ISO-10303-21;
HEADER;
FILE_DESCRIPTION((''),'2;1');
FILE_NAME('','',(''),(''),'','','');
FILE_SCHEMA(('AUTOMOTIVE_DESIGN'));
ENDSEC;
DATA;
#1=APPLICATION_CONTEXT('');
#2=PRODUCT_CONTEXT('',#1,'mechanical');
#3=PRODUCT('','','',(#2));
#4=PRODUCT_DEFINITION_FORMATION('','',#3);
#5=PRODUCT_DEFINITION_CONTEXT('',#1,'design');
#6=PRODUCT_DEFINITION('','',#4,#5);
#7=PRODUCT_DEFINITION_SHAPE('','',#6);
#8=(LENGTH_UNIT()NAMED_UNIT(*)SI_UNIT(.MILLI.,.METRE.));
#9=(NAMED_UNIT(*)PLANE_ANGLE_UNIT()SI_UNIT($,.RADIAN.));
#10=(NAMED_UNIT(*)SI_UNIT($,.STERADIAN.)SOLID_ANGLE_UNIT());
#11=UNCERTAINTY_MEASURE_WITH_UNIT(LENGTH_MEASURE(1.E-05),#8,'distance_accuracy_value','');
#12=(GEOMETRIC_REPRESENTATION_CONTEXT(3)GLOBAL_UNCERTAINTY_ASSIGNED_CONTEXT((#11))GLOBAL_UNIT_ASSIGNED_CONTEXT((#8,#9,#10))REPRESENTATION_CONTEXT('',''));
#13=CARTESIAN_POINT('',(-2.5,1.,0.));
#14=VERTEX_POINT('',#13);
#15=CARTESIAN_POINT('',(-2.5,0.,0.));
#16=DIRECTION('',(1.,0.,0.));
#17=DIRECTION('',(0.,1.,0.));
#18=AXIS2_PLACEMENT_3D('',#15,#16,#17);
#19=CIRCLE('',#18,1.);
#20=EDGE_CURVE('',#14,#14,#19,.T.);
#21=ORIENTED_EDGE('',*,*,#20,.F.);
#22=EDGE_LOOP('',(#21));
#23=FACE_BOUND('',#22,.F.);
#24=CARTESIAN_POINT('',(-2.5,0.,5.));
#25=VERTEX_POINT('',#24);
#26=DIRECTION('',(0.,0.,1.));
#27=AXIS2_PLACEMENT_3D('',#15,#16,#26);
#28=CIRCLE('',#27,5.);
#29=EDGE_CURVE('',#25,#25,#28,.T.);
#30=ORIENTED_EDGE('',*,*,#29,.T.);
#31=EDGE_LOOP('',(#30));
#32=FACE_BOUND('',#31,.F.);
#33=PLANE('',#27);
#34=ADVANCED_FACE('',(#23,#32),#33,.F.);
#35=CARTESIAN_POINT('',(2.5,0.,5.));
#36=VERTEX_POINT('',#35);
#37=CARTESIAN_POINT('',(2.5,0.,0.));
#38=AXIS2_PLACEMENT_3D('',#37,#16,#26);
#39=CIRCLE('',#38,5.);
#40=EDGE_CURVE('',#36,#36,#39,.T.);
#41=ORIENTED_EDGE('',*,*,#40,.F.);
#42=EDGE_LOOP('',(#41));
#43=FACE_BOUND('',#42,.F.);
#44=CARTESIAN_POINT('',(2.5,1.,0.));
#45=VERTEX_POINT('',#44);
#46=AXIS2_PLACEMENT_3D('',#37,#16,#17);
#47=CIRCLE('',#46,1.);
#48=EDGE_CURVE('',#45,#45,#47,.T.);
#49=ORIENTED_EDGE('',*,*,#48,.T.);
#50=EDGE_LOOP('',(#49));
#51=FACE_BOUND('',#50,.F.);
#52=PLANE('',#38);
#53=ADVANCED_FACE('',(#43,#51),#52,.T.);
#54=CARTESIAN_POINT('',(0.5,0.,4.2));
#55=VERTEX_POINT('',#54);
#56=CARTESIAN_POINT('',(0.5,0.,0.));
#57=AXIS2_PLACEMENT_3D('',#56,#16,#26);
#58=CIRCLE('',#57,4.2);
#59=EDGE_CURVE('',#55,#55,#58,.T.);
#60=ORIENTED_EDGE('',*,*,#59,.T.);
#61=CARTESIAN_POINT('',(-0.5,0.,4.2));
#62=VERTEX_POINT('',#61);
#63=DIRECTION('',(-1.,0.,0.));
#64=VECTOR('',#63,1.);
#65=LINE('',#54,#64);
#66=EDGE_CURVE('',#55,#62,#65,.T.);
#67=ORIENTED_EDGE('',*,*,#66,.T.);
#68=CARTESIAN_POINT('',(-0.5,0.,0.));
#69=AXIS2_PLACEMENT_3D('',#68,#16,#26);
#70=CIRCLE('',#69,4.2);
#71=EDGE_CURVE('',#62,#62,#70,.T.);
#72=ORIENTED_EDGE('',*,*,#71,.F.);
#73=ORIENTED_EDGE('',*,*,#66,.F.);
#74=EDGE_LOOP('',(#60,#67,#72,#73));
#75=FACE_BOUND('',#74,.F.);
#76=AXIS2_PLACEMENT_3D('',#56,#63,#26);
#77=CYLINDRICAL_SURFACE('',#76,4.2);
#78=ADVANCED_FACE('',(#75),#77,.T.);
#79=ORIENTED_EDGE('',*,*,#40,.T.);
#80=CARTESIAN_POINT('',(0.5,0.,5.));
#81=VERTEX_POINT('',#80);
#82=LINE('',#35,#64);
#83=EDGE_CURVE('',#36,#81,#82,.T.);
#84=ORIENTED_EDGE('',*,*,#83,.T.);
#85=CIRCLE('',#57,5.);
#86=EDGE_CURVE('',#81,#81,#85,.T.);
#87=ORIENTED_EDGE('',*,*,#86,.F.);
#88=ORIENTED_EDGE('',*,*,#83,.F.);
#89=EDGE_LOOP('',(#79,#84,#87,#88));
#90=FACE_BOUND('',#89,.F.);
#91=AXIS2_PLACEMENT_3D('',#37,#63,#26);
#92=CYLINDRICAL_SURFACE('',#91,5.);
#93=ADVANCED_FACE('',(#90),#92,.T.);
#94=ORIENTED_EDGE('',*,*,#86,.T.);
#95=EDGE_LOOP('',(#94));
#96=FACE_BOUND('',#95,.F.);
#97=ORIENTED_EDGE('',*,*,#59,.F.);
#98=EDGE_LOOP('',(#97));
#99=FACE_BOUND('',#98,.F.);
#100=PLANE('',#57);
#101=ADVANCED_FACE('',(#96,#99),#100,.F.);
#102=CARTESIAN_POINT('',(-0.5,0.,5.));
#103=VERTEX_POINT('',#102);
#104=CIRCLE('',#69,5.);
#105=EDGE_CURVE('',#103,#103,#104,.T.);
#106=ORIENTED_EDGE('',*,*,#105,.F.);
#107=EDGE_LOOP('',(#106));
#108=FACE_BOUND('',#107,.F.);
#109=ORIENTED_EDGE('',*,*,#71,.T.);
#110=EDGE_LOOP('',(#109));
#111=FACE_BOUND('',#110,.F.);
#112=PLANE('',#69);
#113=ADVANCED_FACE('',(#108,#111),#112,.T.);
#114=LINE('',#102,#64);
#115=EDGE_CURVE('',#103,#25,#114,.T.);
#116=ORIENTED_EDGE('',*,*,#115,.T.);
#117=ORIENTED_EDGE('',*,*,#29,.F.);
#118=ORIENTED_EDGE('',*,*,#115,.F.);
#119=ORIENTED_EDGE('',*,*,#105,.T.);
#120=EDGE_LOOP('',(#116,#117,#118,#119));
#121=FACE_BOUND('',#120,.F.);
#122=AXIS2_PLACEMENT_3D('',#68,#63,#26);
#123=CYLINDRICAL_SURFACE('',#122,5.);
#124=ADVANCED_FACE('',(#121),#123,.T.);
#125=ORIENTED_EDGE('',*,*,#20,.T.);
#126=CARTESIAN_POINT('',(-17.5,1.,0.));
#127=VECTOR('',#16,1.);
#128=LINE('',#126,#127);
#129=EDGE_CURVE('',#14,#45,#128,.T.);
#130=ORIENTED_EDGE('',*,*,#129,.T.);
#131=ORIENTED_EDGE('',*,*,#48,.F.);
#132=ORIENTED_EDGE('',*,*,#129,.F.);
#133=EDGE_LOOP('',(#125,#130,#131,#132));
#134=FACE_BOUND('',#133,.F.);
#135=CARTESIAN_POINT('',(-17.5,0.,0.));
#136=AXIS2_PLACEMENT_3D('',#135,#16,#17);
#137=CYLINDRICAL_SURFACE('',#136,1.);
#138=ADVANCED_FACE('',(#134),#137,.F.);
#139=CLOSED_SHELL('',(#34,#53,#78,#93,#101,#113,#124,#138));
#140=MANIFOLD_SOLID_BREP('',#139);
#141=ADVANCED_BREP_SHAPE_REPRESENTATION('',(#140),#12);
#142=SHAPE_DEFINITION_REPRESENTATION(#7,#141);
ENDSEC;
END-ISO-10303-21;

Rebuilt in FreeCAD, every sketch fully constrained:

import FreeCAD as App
import Part
import Sketcher
Q = App.Units.Quantity


def add_polygon(sketch, points):
    """Adds a closed chain of lines whose ends are joined by coincident constraints."""
    first, n = sketch.GeometryCount, len(points)
    for a, b in zip(points, points[1:] + points[:1]):
        sketch.addGeometry(Part.LineSegment(App.Vector(*a, 0), App.Vector(*b, 0)), False)
    for i in range(n):
        sketch.addConstraint(Sketcher.Constraint("Coincident", first + i, 2, first + (i + 1) % n, 1))

doc = App.newDocument("Part")
body = doc.addObject("PartDesign::Body", "Body")

sketch1 = body.newObject("Sketcher::SketchObject", "Sketch")
sketch1.AttachmentSupport = (doc.getObject("XZ_Plane"), [""])
sketch1.MapMode = "FlatFace"
add_polygon(sketch1, [(-2.5, 5), (-2.5, 0), (2.5, 0), (2.5, 5), (0.5, 5), (0.5, 4.2), (-0.5, 4.2), (-0.5, 5)])
sketch1.addConstraint(Sketcher.Constraint("Vertical", 0))
sketch1.addConstraint(Sketcher.Constraint("Horizontal", 1))
sketch1.addConstraint(Sketcher.Constraint("Vertical", 2))
sketch1.addConstraint(Sketcher.Constraint("Horizontal", 3))
sketch1.addConstraint(Sketcher.Constraint("Vertical", 4))
sketch1.addConstraint(Sketcher.Constraint("Horizontal", 5))
sketch1.addConstraint(Sketcher.Constraint("Vertical", 6))
sketch1.addConstraint(Sketcher.Constraint("Horizontal", 7))
sketch1.addConstraint(Sketcher.Constraint("Symmetric", 0, 2, 1, 2, -1, 1))
sketch1.addConstraint(Sketcher.Constraint("Symmetric", 3, 2, 6, 2, -2))
sketch1.addConstraint(Sketcher.Constraint("Equal", 1, 0))
sketch1.addConstraint(Sketcher.Constraint("DistanceX", 1, 1, 1, 2, Q("5 mm")))
sketch1.addConstraint(Sketcher.Constraint("DistanceX", 3, 2, 3, 1, Q("2 mm")))
sketch1.addConstraint(Sketcher.Constraint("DistanceY", 4, 2, 4, 1, Q("0.8 mm")))
revolution = body.newObject("PartDesign::Revolution", "Revolution")
revolution.Profile = sketch1
revolution.ReferenceAxis = (sketch1, ["H_Axis"])
revolution.Angle = 360

sketch2 = body.newObject("Sketcher::SketchObject", "Sketch001")
sketch2.AttachmentSupport = (doc.getObject("YZ_Plane"), [""])
sketch2.MapMode = "FlatFace"
sketch2.AttachmentOffset = App.Placement(App.Vector(0, 0, -2.5), App.Rotation())
sketch2.addGeometry(Part.Circle(App.Vector(0, 0, 0), App.Vector(0, 0, 1), 1), False)
sketch2.addConstraint(Sketcher.Constraint("Coincident", 0, 3, -1, 1))
sketch2.addConstraint(Sketcher.Constraint("Diameter", 0, Q("2 mm")))
doc.recompute()
hole = body.newObject("PartDesign::Hole", "Hole")
hole.Profile = sketch2
hole.ThreadType = "None"
hole.Diameter = 2
hole.DepthType = "ThroughAll"
hole.Reversed = True

doc.recompute()
